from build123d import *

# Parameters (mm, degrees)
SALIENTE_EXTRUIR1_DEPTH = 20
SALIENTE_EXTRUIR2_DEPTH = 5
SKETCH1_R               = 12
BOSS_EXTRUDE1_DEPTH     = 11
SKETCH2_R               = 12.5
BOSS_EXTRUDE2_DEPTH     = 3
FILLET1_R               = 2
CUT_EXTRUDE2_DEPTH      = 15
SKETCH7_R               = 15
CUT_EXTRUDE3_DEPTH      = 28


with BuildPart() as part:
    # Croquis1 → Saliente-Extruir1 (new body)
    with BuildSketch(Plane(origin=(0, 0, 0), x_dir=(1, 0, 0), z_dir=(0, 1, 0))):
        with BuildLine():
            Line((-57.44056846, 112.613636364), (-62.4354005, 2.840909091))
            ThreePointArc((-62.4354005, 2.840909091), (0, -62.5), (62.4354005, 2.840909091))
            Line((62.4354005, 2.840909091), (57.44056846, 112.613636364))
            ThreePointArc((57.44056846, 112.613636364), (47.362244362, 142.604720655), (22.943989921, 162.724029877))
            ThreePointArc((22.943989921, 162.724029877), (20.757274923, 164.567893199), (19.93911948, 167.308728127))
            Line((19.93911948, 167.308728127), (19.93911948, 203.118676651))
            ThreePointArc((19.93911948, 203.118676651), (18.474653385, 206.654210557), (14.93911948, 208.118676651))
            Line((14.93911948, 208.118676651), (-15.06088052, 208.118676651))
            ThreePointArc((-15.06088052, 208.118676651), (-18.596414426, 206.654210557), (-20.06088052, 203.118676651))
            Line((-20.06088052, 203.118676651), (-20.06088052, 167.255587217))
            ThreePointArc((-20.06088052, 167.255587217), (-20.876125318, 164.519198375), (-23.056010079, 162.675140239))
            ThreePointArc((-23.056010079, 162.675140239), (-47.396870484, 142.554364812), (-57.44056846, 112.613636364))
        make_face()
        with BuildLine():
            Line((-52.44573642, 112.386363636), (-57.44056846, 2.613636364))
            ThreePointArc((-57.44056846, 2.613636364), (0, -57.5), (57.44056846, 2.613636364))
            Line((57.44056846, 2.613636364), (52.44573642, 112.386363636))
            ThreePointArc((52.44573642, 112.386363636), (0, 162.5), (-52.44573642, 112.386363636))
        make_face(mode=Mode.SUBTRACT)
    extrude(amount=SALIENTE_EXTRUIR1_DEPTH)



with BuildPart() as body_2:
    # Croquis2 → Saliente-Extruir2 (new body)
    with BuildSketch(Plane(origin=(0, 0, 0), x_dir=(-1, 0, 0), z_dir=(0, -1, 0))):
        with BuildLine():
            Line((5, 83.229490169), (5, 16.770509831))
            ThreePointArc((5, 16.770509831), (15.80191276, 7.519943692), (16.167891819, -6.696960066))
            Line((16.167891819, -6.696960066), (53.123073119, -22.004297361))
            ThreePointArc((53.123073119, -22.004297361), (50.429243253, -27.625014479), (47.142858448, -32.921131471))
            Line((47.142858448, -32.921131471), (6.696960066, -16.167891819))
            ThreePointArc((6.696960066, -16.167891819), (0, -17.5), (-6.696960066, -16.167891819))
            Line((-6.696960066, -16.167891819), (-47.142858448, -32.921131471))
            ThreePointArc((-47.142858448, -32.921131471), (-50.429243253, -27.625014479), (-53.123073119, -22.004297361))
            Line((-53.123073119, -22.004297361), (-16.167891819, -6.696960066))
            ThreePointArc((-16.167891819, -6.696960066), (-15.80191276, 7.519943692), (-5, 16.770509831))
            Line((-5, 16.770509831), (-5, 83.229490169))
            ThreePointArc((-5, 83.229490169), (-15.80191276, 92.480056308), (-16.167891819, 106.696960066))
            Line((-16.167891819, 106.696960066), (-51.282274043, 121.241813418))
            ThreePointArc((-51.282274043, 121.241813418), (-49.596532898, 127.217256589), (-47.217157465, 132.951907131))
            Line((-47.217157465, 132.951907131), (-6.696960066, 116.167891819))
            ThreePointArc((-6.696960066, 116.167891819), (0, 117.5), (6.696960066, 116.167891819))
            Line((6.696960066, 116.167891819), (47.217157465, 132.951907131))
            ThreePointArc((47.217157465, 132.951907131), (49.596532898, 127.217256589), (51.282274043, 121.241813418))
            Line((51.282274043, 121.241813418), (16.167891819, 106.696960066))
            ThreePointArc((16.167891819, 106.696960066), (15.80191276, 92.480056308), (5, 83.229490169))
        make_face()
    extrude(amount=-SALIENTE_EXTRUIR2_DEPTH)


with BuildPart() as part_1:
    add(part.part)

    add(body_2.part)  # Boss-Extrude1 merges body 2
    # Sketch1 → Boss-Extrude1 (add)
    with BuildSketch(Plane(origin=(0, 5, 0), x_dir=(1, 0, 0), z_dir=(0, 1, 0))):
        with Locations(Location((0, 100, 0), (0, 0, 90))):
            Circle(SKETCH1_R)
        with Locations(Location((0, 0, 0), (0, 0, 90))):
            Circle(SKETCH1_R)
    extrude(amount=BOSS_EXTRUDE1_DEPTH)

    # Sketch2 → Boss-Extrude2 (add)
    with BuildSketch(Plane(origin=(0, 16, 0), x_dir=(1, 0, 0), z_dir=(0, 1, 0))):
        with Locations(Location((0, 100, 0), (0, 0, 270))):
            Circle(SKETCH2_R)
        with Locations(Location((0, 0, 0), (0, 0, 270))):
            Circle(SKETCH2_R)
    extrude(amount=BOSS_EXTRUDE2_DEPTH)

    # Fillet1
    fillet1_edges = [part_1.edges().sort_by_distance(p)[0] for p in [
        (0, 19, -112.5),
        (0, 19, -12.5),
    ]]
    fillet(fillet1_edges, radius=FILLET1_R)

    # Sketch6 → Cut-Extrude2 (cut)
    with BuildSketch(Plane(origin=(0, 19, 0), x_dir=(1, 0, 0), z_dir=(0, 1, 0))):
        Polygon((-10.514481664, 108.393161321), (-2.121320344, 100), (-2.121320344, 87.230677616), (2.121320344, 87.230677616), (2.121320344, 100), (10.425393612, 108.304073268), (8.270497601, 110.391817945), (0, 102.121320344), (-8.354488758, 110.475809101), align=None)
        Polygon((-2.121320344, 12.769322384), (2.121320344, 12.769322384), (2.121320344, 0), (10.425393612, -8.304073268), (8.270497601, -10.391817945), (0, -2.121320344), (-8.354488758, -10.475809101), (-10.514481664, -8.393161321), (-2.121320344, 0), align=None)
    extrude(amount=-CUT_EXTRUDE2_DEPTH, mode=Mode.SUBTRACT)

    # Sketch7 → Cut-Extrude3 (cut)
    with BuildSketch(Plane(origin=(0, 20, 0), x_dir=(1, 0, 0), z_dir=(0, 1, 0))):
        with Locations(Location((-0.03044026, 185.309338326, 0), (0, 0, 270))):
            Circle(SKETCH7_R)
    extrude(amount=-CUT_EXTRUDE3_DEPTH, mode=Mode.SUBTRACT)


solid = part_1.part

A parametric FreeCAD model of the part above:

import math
import FreeCAD as App
import Part
import Sketcher
Q = App.Units.Quantity


def edges_at(feature, points):
    """Names of the edges that pass closest to the given points."""
    edges = feature.Shape.Edges
    near = lambda p: min(range(len(edges)), key=lambda i: edges[i].distToShape(Part.Vertex(*p))[0])
    return sorted({f"Edge{near(p) + 1}" for p in points})


def add_polygon(sketch, points):
    """Adds a closed chain of lines whose ends are joined by coincident constraints."""
    first, n = sketch.GeometryCount, len(points)
    for a, b in zip(points, points[1:] + points[:1]):
        sketch.addGeometry(Part.LineSegment(App.Vector(*a, 0), App.Vector(*b, 0)), False)
    for i in range(n):
        sketch.addConstraint(Sketcher.Constraint("Coincident", first + i, 2, first + (i + 1) % n, 1))

doc = App.newDocument("Part")
params = doc.addObject("Spreadsheet::Sheet", "Params")
for row, (alias, value) in enumerate([
    ("sketch1_radius", "5 mm"),
    ("sketch1_radius2", "62.5 mm"),
    ("sketch1_radius3", "57.5 mm"),
    ("sketch1_width", "30 mm"),
    ("pad1_length", "20 mm"),
    ("sketch2_radius", "17.5 mm"),
    ("sketch2_radius2", "52.5 mm"),
    ("sketch2_radius3", "57.5 mm"),
    ("pad2_length", "5 mm"),
    ("sketch3_diameter", "24 mm"),
    ("pad3_length", "11 mm"),
    ("sketch4_diameter", "25 mm"),
    ("pad4_length", "3 mm"),
    ("fillet_radius", "2 mm"),
    ("pocket1_length", "15 mm"),
    ("sketch6_diameter", "30 mm"),
    ("pocket2_length", "28 mm"),
], start=1):
    params.set(f"A{row}", alias)
    params.set(f"B{row}", "=" + value)
    params.setAlias(f"B{row}", alias)

body = doc.addObject("PartDesign::Body", "Body")

sketch1 = body.newObject("Sketcher::SketchObject", "Sketch")
sketch1.AttachmentSupport = (doc.getObject("XZ_Plane"), [""])
sketch1.MapMode = "FlatFace"
sketch1.addGeometry(Part.LineSegment(App.Vector(-57.4, -112.6, 0), App.Vector(-62.4, -2.8, 0)), False)
sketch1.addGeometry(Part.ArcOfCircle(Part.Circle(App.Vector(0, 0, 0), App.Vector(0, 0, 1), 62.5), math.radians(-3), math.radians(183)), False)
sketch1.addGeometry(Part.LineSegment(App.Vector(62.4, -2.8, 0), App.Vector(57.4, -112.6, 0)), False)
sketch1.addGeometry(Part.ArcOfCircle(Part.Circle(App.Vector(0, -110, 0), App.Vector(0, 0, 1), 57.5), math.radians(-66), math.radians(-3)), False)
sketch1.addGeometry(Part.ArcOfCircle(Part.Circle(App.Vector(24.9, -167.3, 0), App.Vector(0, 0, 1), 5), math.radians(114), math.radians(180)), False)
sketch1.addGeometry(Part.LineSegment(App.Vector(19.9, -167.3, 0), App.Vector(19.9, -203.1, 0)), False)
sketch1.addGeometry(Part.ArcOfCircle(Part.Circle(App.Vector(14.9, -203.1, 0), App.Vector(0, 0, 1), 5), math.radians(-90), math.radians(0)), False)
sketch1.addGeometry(Part.LineSegment(App.Vector(14.9, -208.1, 0), App.Vector(-15.1, -208.1, 0)), False)
sketch1.addGeometry(Part.ArcOfCircle(Part.Circle(App.Vector(-15.1, -203.1, 0), App.Vector(0, 0, 1), 5), math.radians(180), math.radians(270)), False)
sketch1.addGeometry(Part.LineSegment(App.Vector(-20.1, -203.1, 0), App.Vector(-20.1, -167.3, 0)), False)
sketch1.addGeometry(Part.ArcOfCircle(Part.Circle(App.Vector(-25.1, -167.3, 0), App.Vector(0, 0, 1), 5), math.radians(0), math.radians(66)), False)
sketch1.addGeometry(Part.ArcOfCircle(Part.Circle(App.Vector(0, -110, 0), App.Vector(0, 0, 1), 57.5), math.radians(-177), math.radians(-114)), False)
sketch1.addGeometry(Part.LineSegment(App.Vector(-57.4, -2.6, 0), App.Vector(-52.4, -112.4, 0)), False)
sketch1.addGeometry(Part.ArcOfCircle(Part.Circle(App.Vector(0, -110, 0), App.Vector(0, 0, 1), 52.5), math.radians(-177), math.radians(-3)), False)
sketch1.addGeometry(Part.LineSegment(App.Vector(52.4, -112.4, 0), App.Vector(57.4, -2.6, 0)), False)
sketch1.addGeometry(Part.ArcOfCircle(Part.Circle(App.Vector(0, 0, 0), App.Vector(0, 0, 1), 57.5), math.radians(-3), math.radians(183)), False)
sketch1.addConstraint(Sketcher.Constraint("Tangent", 0, 2, 1, 2))
sketch1.addConstraint(Sketcher.Constraint("Tangent", 1, 1, 2, 1))
sketch1.addConstraint(Sketcher.Constraint("Tangent", 2, 2, 3, 2))
sketch1.addConstraint(Sketcher.Constraint("Tangent", 3, 1, 4, 1))
sketch1.addConstraint(Sketcher.Constraint("Tangent", 4, 2, 5, 1))
sketch1.addConstraint(Sketcher.Constraint("Tangent", 5, 2, 6, 2))
sketch1.addConstraint(Sketcher.Constraint("Tangent", 6, 1, 7, 1))
sketch1.addConstraint(Sketcher.Constraint("Tangent", 7, 2, 8, 2))
sketch1.addConstraint(Sketcher.Constraint("Tangent", 8, 1, 9, 1))
sketch1.addConstraint(Sketcher.Constraint("Tangent", 9, 2, 10, 1))
sketch1.addConstraint(Sketcher.Constraint("Tangent", 10, 2, 11, 2))
sketch1.addConstraint(Sketcher.Constraint("Tangent", 11, 1, 0, 1))
sketch1.addConstraint(Sketcher.Constraint("Tangent", 12, 2, 13, 1))
sketch1.addConstraint(Sketcher.Constraint("Tangent", 13, 2, 14, 1))
sketch1.addConstraint(Sketcher.Constraint("Tangent", 14, 2, 15, 1))
sketch1.addConstraint(Sketcher.Constraint("Tangent", 15, 2, 12, 1))
sketch1.addConstraint(Sketcher.Constraint("Vertical", 5))
sketch1.addConstraint(Sketcher.Constraint("Horizontal", 7))
sketch1.addConstraint(Sketcher.Constraint("Vertical", 9))
sketch1.addConstraint(Sketcher.Constraint("Coincident", 1, 3, -1, 1))
sketch1.addConstraint(Sketcher.Constraint("Coincident", 15, 3, -1, 1))
sketch1.addConstraint(Sketcher.Constraint("Coincident", 11, 3, 3, 3))
sketch1.addConstraint(Sketcher.Constraint("Coincident", 13, 3, 3, 3))
sketch1.addConstraint(Sketcher.Constraint("Equal", 4, 6))
sketch1.addConstraint(Sketcher.Constraint("Equal", 6, 8))
sketch1.addConstraint(Sketcher.Constraint("Equal", 8, 10))
sketch1.addConstraint(Sketcher.Constraint("Equal", 3, 11))
sketch1.addConstraint(Sketcher.Constraint("Equal", 11, 15))
sketch1.addConstraint(Sketcher.Constraint("PointOnObject", 3, 3, -2))
sketch1.addConstraint(Sketcher.Constraint("Parallel", 0, 12))
sketch1.addConstraint(Sketcher.Constraint("Radius", 4, 5.0))
sketch1.addConstraint(Sketcher.Constraint("Radius", 1, 62.5))
sketch1.addConstraint(Sketcher.Constraint("Radius", 3, 57.5))
sketch1.addConstraint(Sketcher.Constraint("DistanceX", 7, 2, 7, 1, 30.0))
sketch1.addConstraint(Sketcher.Constraint("DistanceY", 3, 3, -1, 1, 110.0))
sketch1.addConstraint(Sketcher.Constraint("DistanceY", 5, 2, 5, 1, 35.809949))
sketch1.addConstraint(Sketcher.Constraint("DistanceY", 9, 1, 9, 2, 35.863089))
sketch1.setExpression("Constraints[30]", "Params.sketch1_radius")
sketch1.setExpression("Constraints[31]", "Params.sketch1_radius2")
sketch1.setExpression("Constraints[32]", "Params.sketch1_radius3")
sketch1.setExpression("Constraints[33]", "Params.sketch1_width")
pad1 = body.newObject("PartDesign::Pad", "Pad")
pad1.Profile = sketch1
pad1.setExpression("Length", "Params.pad1_length")
pad1.Reversed = True
body2 = doc.addObject("PartDesign::Body", "Body001")

sketch2 = body2.newObject("Sketcher::SketchObject", "Sketch001")
sketch2.AttachmentSupport = (doc.getObject("XZ_Plane001"), [""])
sketch2.MapMode = "FlatFace"
sketch2.addGeometry(Part.LineSegment(App.Vector(-5, -17, 0), App.Vector(-5, -83, 0)), False)
sketch2.addGeometry(Part.ArcOfCircle(Part.Circle(App.Vector(0, -100, 0), App.Vector(0, 0, 1), 17), math.radians(107), math.radians(203)), False)
sketch2.addGeometry(Part.LineSegment(App.Vector(-16, -107, 0), App.Vector(-51, -121, 0)), False)
sketch2.addGeometry(Part.ArcOfCircle(Part.Circle(App.Vector(0, -110, 0), App.Vector(0, 0, 1), 53), math.radians(-167.64), math.radians(-154.08)), False)
sketch2.addGeometry(Part.LineSegment(App.Vector(-47, -133, 0), App.Vector(-7, -116, 0)), False)
sketch2.addGeometry(Part.ArcOfCircle(Part.Circle(App.Vector(0, -100, 0), App.Vector(0, 0, 1), 17), math.radians(-113), math.radians(-67)), False)
sketch2.addGeometry(Part.LineSegment(App.Vector(7, -116, 0), App.Vector(47, -133, 0)), False)
sketch2.addGeometry(Part.ArcOfCircle(Part.Circle(App.Vector(0, -110, 0), App.Vector(0, 0, 1), 53), math.radians(-25.92), math.radians(-12.36)), False)
sketch2.addGeometry(Part.LineSegment(App.Vector(51, -121, 0), App.Vector(16, -107, 0)), False)
sketch2.addGeometry(Part.ArcOfCircle(Part.Circle(App.Vector(0, -100, 0), App.Vector(0, 0, 1), 17), math.radians(-23), math.radians(73)), False)
sketch2.addGeometry(Part.LineSegment(App.Vector(5, -83, 0), App.Vector(5, -17, 0)), False)
sketch2.addGeometry(Part.ArcOfCircle(Part.Circle(App.Vector(0, 0, 0), App.Vector(0, 0, 1), 17), math.radians(-73), math.radians(23)), False)
sketch2.addGeometry(Part.LineSegment(App.Vector(16, 7, 0), App.Vector(53, 22, 0)), False)
sketch2.addGeometry(Part.ArcOfCircle(Part.Circle(App.Vector(0, 0, 0), App.Vector(0, 0, 1), 57), math.radians(22.5), math.radians(34.93)), False)
sketch2.addGeometry(Part.LineSegment(App.Vector(47, 33, 0), App.Vector(7, 16, 0)), False)
sketch2.addGeometry(Part.ArcOfCircle(Part.Circle(App.Vector(0, 0, 0), App.Vector(0, 0, 1), 17), math.radians(67), math.radians(113)), False)
sketch2.addGeometry(Part.LineSegment(App.Vector(-7, 16, 0), App.Vector(-47, 33, 0)), False)
sketch2.addGeometry(Part.ArcOfCircle(Part.Circle(App.Vector(0, 0, 0), App.Vector(0, 0, 1), 57), math.radians(145.07), math.radians(157.5)), False)
sketch2.addGeometry(Part.LineSegment(App.Vector(-53, 22, 0), App.Vector(-16, 7, 0)), False)
sketch2.addGeometry(Part.ArcOfCircle(Part.Circle(App.Vector(0, 0, 0), App.Vector(0, 0, 1), 17), math.radians(157), math.radians(253)), False)
sketch2.addConstraint(Sketcher.Constraint("Coincident", 0, 2, 1, 1))
sketch2.addConstraint(Sketcher.Constraint("Coincident", 1, 2, 2, 1))
sketch2.addConstraint(Sketcher.Constraint("Coincident", 2, 2, 3, 1))
sketch2.addConstraint(Sketcher.Constraint("Coincident", 3, 2, 4, 1))
sketch2.addConstraint(Sketcher.Constraint("Coincident", 4, 2, 5, 1))
sketch2.addConstraint(Sketcher.Constraint("Coincident", 5, 2, 6, 1))
sketch2.addConstraint(Sketcher.Constraint("Coincident", 6, 2, 7, 1))
sketch2.addConstraint(Sketcher.Constraint("Coincident", 7, 2, 8, 1))
sketch2.addConstraint(Sketcher.Constraint("Coincident", 8, 2, 9, 1))
sketch2.addConstraint(Sketcher.Constraint("Coincident", 9, 2, 10, 1))
sketch2.addConstraint(Sketcher.Constraint("Coincident", 10, 2, 11, 1))
sketch2.addConstraint(Sketcher.Constraint("Coincident", 11, 2, 12, 1))
sketch2.addConstraint(Sketcher.Constraint("Coincident", 12, 2, 13, 1))
sketch2.addConstraint(Sketcher.Constraint("Coincident", 13, 2, 14, 1))
sketch2.addConstraint(Sketcher.Constraint("Coincident", 14, 2, 15, 1))
sketch2.addConstraint(Sketcher.Constraint("Coincident", 15, 2, 16, 1))
sketch2.addConstraint(Sketcher.Constraint("Coincident", 16, 2, 17, 1))
sketch2.addConstraint(Sketcher.Constraint("Coincident", 17, 2, 18, 1))
sketch2.addConstraint(Sketcher.Constraint("Coincident", 18, 2, 19, 1))
sketch2.addConstraint(Sketcher.Constraint("Coincident", 19, 2, 0, 1))
sketch2.addConstraint(Sketcher.Constraint("Vertical", 0))
sketch2.addConstraint(Sketcher.Constraint("Vertical", 10))
sketch2.addConstraint(Sketcher.Constraint("Coincident", 11, 3, -1, 1))
sketch2.addConstraint(Sketcher.Constraint("Coincident", 13, 3, -1, 1))
sketch2.addConstraint(Sketcher.Constraint("Coincident", 15, 3, -1, 1))
sketch2.addConstraint(Sketcher.Constraint("Coincident", 17, 3, -1, 1))
sketch2.addConstraint(Sketcher.Constraint("Coincident", 19, 3, -1, 1))
sketch2.addConstraint(Sketcher.Constraint("Coincident", 5, 3, 1, 3))
sketch2.addConstraint(Sketcher.Constraint("Coincident", 7, 3, 3, 3))
sketch2.addConstraint(Sketcher.Constraint("Coincident", 9, 3, 1, 3))
sketch2.addConstraint(Sketcher.Constraint("Equal", 1, 5))
sketch2.addConstraint(Sketcher.Constraint("Equal", 3, 7))
sketch2.addConstraint(Sketcher.Constraint("Equal", 5, 9))
sketch2.addConstraint(Sketcher.Constraint("Equal", 9, 11))
sketch2.addConstraint(Sketcher.Constraint("Equal", 11, 15))
sketch2.addConstraint(Sketcher.Constraint("Equal", 13, 17))
sketch2.addConstraint(Sketcher.Constraint("Equal", 15, 19))
sketch2.addConstraint(Sketcher.Constraint("Symmetric", 4, 2, 5, 2, -2))
sketch2.addConstraint(Sketcher.Constraint("Symmetric", 3, 2, 6, 2, -2))
sketch2.addConstraint(Sketcher.Constraint("Parallel", 2, 4))
sketch2.addConstraint(Sketcher.Constraint("Parallel", 6, 8))
sketch2.addConstraint(Sketcher.Constraint("Parallel", 4, 12))
sketch2.addConstraint(Sketcher.Constraint("Parallel", 12, 14))
sketch2.addConstraint(Sketcher.Constraint("Parallel", 8, 16))
sketch2.addConstraint(Sketcher.Constraint("Parallel", 16, 18))
sketch2.addConstraint(Sketcher.Constraint("Horizontal", 2, 2, 7, 2))
sketch2.addConstraint(Sketcher.Constraint("Horizontal", 0, 2, 9, 2))
sketch2.addConstraint(Sketcher.Constraint("Horizontal", 14, 2, 15, 2))
sketch2.addConstraint(Sketcher.Constraint("Horizontal", 12, 2, 17, 2))
sketch2.addConstraint(Sketcher.Constraint("Vertical", 8, 2, 11, 2))
sketch2.addConstraint(Sketcher.Constraint("Vertical", 5, 2, 14, 2))
sketch2.addConstraint(Sketcher.Constraint("Radius", 1, 17.5))
sketch2.addConstraint(Sketcher.Constraint("Radius", 3, 52.5))
sketch2.addConstraint(Sketcher.Constraint("Radius", 13, 57.5))
sketch2.addConstraint(Sketcher.Constraint("DistanceY", 1, 3, -1, 1, 100.0))
sketch2.addConstraint(Sketcher.Constraint("DistanceY", 3, 3, -1, 1, 110.0))
sketch2.addConstraint(Sketcher.Constraint("DistanceX", 0, 2, -1, 1, 5.0))
sketch2.addConstraint(Sketcher.Constraint("Angle", 2, Q("-157.5 deg")))
sketch2.addConstraint(Sketcher.Constraint("DistanceX", 16, 2, 15, 2, 40.445898))
sketch2.addConstraint(Sketcher.Constraint("DistanceX", 1, 2, -1, 1, 16.167892))
sketch2.setExpression("Constraints[51]", "Params.sketch2_radius")
sketch2.setExpression("Constraints[52]", "Params.sketch2_radius2")
sketch2.setExpression("Constraints[53]", "Params.sketch2_radius3")
pad2 = body2.newObject("PartDesign::Pad", "Pad001")
pad2.Profile = sketch2
pad2.setExpression("Length", "Params.pad2_length")
pad2.Reversed = True
doc.recompute()

boolean = body.newObject("PartDesign::Boolean", "Boolean")
boolean.Type = "Fuse"
boolean.addObjects([body2])

sketch3 = body.newObject("Sketcher::SketchObject", "Sketch002")
sketch3.AttachmentSupport = (doc.getObject("XZ_Plane"), [""])
sketch3.MapMode = "FlatFace"
sketch3.AttachmentOffset = App.Placement(App.Vector(0, 0, -5), App.Rotation())
sketch3.addGeometry(Part.Circle(App.Vector(0, -100, 0), App.Vector(0, 0, 1), 12), False)
sketch3.addGeometry(Part.Circle(App.Vector(0, 0, 0), App.Vector(0, 0, 1), 12), False)
sketch3.addConstraint(Sketcher.Constraint("Coincident", 1, 3, -1, 1))
sketch3.addConstraint(Sketcher.Constraint("Equal", 0, 1))
sketch3.addConstraint(Sketcher.Constraint("PointOnObject", 0, 3, -2))
sketch3.addConstraint(Sketcher.Constraint("Diameter", 0, 24.0))
sketch3.addConstraint(Sketcher.Constraint("DistanceY", 0, 3, -1, 1, 100.0))
sketch3.setExpression("Constraints[3]", "Params.sketch3_diameter")
pad3 = body.newObject("PartDesign::Pad", "Pad002")
pad3.Profile = sketch3
pad3.setExpression("Length", "Params.pad3_length")
pad3.Reversed = True

sketch4 = body.newObject("Sketcher::SketchObject", "Sketch003")
sketch4.AttachmentSupport = (doc.getObject("XZ_Plane"), [""])
sketch4.MapMode = "FlatFace"
sketch4.AttachmentOffset = App.Placement(App.Vector(0, 0, -16), App.Rotation())
sketch4.addGeometry(Part.Circle(App.Vector(0, -100, 0), App.Vector(0, 0, 1), 12), False)
sketch4.addGeometry(Part.Circle(App.Vector(0, 0, 0), App.Vector(0, 0, 1), 12), False)
sketch4.addConstraint(Sketcher.Constraint("Coincident", 1, 3, -1, 1))
sketch4.addConstraint(Sketcher.Constraint("Equal", 0, 1))
sketch4.addConstraint(Sketcher.Constraint("PointOnObject", 0, 3, -2))
sketch4.addConstraint(Sketcher.Constraint("Diameter", 0, 25.0))
sketch4.addConstraint(Sketcher.Constraint("DistanceY", 0, 3, -1, 1, 100.0))
sketch4.setExpression("Constraints[3]", "Params.sketch4_diameter")
pad4 = body.newObject("PartDesign::Pad", "Pad003")
pad4.Profile = sketch4
pad4.setExpression("Length", "Params.pad4_length")
pad4.Reversed = True
doc.recompute()

fillet = body.newObject("PartDesign::Fillet", "Fillet")
fillet.Base = (pad4, edges_at(pad4, [(0, 19, -112.5), (0, 19, -12.5)]))
fillet.setExpression("Radius", "Params.fillet_radius")

sketch5 = body.newObject("Sketcher::SketchObject", "Sketch004")
sketch5.AttachmentSupport = (doc.getObject("XZ_Plane"), [""])
sketch5.MapMode = "FlatFace"
sketch5.AttachmentOffset = App.Placement(App.Vector(0, 0, -19), App.Rotation())
add_polygon(sketch5, [(-10.5, -108.4), (-2.1, -100), (-2.1, -87.2), (2.1, -87.2), (2.1, -100), (10.4, -108.3), (8.3, -110.4), (0, -102.1), (-8.4, -110.5)])
add_polygon(sketch5, [(2.1, -12.8), (-2.1, -12.8), (-2.1, 0), (-10.5, 8.4), (-8.4, 10.5), (0, 2.1), (8.3, 10.4), (10.4, 8.3), (2.1, 0)])
sketch5.addConstraint(Sketcher.Constraint("Vertical", 1))
sketch5.addConstraint(Sketcher.Constraint("Horizontal", 2))
sketch5.addConstraint(Sketcher.Constraint("Vertical", 3))
sketch5.addConstraint(Sketcher.Constraint("Horizontal", 9))
sketch5.addConstraint(Sketcher.Constraint("Vertical", 10))
sketch5.addConstraint(Sketcher.Constraint("Vertical", 17))
sketch5.addConstraint(Sketcher.Constraint("Symmetric", 10, 2, 16, 2, -1, 1))
sketch5.addConstraint(Sketcher.Constraint("Symmetric", 0, 2, 3, 2, -2))
sketch5.addConstraint(Sketcher.Constraint("PointOnObject", 6, 2, -2))
sketch5.addConstraint(Sketcher.Constraint("PointOnObject", 10, 2, -1))
sketch5.addConstraint(Sketcher.Constraint("PointOnObject", 13, 2, -2))
sketch5.addConstraint(Sketcher.Constraint("Perpendicular", 0, 4))
sketch5.addConstraint(Sketcher.Constraint("Parallel", 4, 6))
sketch5.addConstraint(Sketcher.Constraint("Perpendicular", 6, 7))
sketch5.addConstraint(Sketcher.Constraint("Perpendicular", 7, 11))
sketch5.addConstraint(Sketcher.Constraint("Parallel", 11, 13))
sketch5.addConstraint(Sketcher.Constraint("Perpendicular", 13, 14))
sketch5.addConstraint(Sketcher.Constraint("Parallel", 14, 16))
sketch5.addConstraint(Sketcher.Constraint("Vertical", 1, 2, 9, 2))
sketch5.addConstraint(Sketcher.Constraint("Vertical", 8, 2, 11, 2))
sketch5.addConstraint(Sketcher.Constraint("Vertical", 7, 2, 12, 2))
sketch5.addConstraint(Sketcher.Constraint("Vertical", 5, 2, 14, 2))
sketch5.addConstraint(Sketcher.Constraint("Vertical", 4, 2, 15, 2))
sketch5.addConstraint(Sketcher.Constraint("Equal", 3, 10))
sketch5.addConstraint(Sketcher.Constraint("Equal", 0, 11))
sketch5.addConstraint(Sketcher.Constraint("Equal", 8, 12))
sketch5.addConstraint(Sketcher.Constraint("DistanceY", 0, 2, -1, 1, 100.0))
sketch5.addConstraint(Sketcher.Constraint("Distance", 8, 3.000498))
sketch5.addConstraint(Sketcher.Constraint("DistanceX", 2, 1, 2, 2, 4.242641))
sketch5.addConstraint(Sketcher.Constraint("Distance", 6, 11.69625))
sketch5.addConstraint(Sketcher.Constraint("Distance", 7, 11.815031))
sketch5.addConstraint(Sketcher.Constraint("DistanceY", 1, 1, 1, 2, 12.769322))
sketch5.addConstraint(Sketcher.Constraint("DistanceY", 6, 2, -1, 1, 102.12132))
sketch5.addConstraint(Sketcher.Constraint("DistanceY", 15, 2, 11, 2, 0.089088))
pocket1 = body.newObject("PartDesign::Pocket", "Pocket")
pocket1.Profile = sketch5
pocket1.setExpression("Length", "Params.pocket1_length")
pocket1.Reversed = True

sketch6 = body.newObject("Sketcher::SketchObject", "Sketch005")
sketch6.AttachmentSupport = (doc.getObject("XZ_Plane"), [""])
sketch6.MapMode = "FlatFace"
sketch6.AttachmentOffset = App.Placement(App.Vector(0, 0, -20), App.Rotation())
sketch6.addGeometry(Part.Circle(App.Vector(0, -185, 0), App.Vector(0, 0, 1), 15), False)
sketch6.addConstraint(Sketcher.Constraint("Diameter", 0, 30.0))
sketch6.addConstraint(Sketcher.Constraint("DistanceX", 0, 3, -1, 1, 0.03044))
sketch6.addConstraint(Sketcher.Constraint("DistanceY", 0, 3, -1, 1, 185.309338))
sketch6.setExpression("Constraints[0]", "Params.sketch6_diameter")
pocket2 = body.newObject("PartDesign::Pocket", "Pocket001")
pocket2.Profile = sketch6
pocket2.setExpression("Length", "Params.pocket2_length")
pocket2.Reversed = True

doc.recompute()
